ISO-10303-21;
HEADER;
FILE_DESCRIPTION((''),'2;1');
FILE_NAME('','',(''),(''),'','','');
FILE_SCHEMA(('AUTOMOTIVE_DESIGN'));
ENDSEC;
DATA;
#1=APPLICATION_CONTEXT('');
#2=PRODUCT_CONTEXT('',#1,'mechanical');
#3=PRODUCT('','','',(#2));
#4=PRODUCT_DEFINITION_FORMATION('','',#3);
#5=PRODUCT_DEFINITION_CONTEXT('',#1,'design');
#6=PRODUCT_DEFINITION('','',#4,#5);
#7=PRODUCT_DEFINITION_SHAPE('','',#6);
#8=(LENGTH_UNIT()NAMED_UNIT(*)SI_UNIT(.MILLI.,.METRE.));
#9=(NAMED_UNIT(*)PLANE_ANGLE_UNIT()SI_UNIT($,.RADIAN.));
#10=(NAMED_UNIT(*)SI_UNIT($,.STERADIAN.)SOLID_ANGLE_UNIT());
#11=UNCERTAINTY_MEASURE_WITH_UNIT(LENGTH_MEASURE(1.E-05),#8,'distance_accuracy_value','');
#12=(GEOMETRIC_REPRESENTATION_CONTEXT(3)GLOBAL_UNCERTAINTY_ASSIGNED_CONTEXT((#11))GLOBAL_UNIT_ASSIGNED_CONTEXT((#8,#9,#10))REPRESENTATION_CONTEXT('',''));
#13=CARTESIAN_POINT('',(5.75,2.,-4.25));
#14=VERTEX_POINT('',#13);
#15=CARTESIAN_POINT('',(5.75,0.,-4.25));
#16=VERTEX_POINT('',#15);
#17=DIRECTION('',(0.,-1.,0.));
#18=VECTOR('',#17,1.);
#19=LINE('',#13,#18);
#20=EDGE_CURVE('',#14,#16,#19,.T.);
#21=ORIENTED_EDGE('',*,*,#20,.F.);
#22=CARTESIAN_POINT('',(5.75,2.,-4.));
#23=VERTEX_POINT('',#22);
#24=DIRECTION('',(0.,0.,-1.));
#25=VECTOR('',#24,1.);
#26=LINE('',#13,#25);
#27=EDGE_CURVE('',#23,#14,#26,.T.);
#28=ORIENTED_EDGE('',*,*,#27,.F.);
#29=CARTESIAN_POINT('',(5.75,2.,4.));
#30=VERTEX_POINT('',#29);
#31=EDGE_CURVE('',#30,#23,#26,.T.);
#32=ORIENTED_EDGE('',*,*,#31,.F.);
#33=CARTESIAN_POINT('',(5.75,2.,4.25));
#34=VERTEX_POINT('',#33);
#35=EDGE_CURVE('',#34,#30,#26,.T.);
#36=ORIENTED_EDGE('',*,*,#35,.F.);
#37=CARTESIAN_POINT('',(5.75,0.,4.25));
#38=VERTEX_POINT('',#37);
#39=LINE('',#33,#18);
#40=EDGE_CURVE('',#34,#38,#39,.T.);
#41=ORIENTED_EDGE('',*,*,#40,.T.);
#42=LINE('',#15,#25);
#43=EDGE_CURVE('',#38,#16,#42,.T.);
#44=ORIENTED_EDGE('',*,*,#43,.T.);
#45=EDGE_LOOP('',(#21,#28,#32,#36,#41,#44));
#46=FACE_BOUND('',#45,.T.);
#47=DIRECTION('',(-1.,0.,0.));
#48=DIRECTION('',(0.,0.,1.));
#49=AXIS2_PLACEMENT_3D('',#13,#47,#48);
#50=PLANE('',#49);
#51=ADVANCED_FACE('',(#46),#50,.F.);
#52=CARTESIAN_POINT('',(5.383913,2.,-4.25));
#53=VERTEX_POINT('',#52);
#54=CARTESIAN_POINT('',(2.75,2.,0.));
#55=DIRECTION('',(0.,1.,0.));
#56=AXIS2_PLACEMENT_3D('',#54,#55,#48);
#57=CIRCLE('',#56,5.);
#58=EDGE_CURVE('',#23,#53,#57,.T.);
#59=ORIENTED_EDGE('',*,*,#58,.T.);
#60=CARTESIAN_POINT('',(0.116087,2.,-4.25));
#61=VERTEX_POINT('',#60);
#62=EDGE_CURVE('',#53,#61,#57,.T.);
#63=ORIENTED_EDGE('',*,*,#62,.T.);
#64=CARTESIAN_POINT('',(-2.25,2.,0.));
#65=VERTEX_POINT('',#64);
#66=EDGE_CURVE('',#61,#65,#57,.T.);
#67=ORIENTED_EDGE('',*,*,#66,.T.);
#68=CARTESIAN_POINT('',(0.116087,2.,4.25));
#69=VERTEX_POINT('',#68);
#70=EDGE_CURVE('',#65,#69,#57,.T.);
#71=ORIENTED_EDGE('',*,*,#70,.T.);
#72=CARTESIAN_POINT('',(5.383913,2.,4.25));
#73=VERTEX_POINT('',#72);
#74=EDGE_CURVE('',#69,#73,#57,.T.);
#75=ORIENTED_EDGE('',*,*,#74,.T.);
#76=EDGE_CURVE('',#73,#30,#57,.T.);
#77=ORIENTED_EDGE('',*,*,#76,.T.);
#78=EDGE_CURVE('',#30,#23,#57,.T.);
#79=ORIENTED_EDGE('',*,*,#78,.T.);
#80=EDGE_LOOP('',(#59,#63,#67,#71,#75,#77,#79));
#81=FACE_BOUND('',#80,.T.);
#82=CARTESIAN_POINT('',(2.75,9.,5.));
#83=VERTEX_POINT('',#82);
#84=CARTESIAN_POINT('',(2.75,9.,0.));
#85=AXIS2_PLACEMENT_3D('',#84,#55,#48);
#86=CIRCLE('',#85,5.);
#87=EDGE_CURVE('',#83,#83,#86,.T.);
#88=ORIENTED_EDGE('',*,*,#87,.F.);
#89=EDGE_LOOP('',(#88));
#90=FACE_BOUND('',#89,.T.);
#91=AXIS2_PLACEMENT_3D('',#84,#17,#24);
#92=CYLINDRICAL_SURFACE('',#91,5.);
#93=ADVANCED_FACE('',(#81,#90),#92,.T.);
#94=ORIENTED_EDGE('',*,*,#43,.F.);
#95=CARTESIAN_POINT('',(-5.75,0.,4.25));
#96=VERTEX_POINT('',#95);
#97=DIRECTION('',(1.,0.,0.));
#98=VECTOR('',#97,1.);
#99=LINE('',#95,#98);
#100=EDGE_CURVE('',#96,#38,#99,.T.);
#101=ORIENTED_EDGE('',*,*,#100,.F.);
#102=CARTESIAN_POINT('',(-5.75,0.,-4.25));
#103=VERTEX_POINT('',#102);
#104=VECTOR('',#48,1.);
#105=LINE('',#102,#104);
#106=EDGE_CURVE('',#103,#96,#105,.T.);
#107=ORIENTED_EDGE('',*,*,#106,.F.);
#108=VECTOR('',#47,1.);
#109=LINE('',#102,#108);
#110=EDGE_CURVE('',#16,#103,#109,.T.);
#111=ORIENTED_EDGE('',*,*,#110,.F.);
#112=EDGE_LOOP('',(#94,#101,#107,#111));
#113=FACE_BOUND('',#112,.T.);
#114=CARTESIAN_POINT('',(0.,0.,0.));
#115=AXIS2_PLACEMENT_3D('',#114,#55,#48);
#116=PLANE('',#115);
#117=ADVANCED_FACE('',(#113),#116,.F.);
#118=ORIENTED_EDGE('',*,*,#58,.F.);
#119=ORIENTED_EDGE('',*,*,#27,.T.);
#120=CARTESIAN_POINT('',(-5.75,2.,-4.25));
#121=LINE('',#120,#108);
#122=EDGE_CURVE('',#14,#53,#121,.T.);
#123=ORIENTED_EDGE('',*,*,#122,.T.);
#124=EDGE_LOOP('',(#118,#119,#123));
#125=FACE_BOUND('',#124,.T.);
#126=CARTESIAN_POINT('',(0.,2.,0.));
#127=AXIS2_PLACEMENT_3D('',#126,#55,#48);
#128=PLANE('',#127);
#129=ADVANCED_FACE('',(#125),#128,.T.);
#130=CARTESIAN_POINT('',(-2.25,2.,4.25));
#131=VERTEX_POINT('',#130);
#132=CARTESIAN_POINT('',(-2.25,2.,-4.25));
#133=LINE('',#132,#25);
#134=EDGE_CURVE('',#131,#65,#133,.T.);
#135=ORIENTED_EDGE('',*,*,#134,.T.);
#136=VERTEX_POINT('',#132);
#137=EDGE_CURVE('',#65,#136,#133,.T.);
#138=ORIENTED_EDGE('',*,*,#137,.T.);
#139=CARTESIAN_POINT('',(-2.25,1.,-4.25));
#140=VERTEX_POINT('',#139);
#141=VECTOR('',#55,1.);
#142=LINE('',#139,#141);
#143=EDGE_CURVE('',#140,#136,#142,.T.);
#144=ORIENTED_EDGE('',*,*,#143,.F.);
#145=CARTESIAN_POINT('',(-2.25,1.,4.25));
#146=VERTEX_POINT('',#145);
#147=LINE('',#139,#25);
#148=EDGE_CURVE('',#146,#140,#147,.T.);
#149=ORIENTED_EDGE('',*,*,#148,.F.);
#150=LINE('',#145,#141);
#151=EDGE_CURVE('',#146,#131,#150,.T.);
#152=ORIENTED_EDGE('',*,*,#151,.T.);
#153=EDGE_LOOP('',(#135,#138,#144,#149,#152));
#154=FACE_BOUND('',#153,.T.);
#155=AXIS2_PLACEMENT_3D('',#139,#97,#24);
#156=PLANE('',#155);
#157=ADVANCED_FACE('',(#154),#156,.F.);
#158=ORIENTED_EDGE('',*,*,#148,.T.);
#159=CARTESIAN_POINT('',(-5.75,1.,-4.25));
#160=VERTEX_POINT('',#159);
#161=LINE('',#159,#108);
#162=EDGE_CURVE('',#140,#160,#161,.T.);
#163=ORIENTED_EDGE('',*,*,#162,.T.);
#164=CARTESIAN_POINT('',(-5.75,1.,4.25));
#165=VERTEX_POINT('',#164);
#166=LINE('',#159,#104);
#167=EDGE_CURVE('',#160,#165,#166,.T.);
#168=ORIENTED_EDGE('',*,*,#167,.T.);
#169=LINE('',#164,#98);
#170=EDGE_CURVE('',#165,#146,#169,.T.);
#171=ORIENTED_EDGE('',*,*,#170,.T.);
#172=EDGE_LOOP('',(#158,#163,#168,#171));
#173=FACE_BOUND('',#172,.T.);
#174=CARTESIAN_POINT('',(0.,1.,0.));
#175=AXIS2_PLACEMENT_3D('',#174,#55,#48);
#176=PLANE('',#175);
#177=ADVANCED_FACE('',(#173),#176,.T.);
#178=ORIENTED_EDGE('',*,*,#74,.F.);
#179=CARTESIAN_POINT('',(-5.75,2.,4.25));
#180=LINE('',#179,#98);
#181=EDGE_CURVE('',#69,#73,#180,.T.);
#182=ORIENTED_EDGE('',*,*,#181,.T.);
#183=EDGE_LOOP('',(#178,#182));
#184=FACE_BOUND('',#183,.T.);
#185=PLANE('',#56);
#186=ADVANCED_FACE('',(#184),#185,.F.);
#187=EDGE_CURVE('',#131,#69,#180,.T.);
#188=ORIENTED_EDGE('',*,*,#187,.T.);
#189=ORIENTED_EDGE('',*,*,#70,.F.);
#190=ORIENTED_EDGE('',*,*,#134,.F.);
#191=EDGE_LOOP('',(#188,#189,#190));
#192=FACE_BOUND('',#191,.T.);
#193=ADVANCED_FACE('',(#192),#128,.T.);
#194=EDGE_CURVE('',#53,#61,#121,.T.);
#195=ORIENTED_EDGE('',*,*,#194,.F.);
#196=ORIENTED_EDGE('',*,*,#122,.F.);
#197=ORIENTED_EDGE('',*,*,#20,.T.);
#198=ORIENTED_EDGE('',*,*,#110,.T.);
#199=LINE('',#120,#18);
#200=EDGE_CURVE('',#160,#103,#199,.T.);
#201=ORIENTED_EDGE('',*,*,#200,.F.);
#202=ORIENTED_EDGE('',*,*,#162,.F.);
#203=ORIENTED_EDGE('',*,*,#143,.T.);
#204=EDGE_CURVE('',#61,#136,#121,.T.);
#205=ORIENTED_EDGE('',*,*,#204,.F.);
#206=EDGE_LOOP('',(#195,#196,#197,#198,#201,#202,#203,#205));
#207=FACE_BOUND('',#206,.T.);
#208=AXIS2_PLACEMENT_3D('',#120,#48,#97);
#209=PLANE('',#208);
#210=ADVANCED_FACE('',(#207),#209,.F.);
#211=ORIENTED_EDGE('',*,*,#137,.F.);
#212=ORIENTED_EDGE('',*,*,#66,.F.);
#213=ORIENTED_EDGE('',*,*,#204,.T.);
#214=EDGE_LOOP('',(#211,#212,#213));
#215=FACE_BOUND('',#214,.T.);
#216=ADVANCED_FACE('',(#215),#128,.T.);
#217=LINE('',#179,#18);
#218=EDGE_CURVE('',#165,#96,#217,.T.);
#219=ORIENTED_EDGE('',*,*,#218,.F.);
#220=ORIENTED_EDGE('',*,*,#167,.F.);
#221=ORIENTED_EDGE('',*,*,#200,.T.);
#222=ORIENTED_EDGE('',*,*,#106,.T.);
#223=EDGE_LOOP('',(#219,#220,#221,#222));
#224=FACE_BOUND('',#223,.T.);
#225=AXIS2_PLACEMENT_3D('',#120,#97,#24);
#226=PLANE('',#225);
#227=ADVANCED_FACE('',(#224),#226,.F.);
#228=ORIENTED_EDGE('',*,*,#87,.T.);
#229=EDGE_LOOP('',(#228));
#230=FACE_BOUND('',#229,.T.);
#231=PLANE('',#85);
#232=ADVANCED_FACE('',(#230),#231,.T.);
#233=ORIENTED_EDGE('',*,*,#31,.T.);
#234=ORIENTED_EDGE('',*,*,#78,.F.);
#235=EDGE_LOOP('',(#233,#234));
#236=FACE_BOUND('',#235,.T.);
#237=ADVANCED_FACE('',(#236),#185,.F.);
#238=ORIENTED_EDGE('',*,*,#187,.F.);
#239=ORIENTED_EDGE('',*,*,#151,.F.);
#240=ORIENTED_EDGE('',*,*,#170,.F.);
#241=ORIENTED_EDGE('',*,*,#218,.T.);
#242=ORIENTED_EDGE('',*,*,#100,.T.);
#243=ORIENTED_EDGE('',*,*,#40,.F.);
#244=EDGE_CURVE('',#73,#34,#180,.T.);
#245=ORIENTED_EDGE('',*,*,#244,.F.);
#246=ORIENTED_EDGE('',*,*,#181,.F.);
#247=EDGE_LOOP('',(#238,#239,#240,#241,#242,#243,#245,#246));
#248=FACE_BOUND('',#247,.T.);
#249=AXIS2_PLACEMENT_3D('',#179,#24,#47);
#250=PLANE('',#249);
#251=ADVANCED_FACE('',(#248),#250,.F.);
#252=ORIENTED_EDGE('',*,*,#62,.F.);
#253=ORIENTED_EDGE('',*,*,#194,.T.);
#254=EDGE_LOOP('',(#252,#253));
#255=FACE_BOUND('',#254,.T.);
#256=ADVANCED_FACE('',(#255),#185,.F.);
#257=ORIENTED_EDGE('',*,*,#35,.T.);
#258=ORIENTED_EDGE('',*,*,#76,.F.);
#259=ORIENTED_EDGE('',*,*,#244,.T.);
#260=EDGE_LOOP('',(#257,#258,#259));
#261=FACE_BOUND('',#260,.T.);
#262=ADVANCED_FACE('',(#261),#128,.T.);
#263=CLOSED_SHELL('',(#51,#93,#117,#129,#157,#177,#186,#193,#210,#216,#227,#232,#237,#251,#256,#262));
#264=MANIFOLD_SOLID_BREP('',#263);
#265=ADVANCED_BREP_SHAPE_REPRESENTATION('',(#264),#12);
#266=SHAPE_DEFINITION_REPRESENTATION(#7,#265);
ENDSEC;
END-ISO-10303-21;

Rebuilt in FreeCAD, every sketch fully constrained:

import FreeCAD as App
import Part
import Sketcher
from FreeCAD import Vector
Q = App.Units.Quantity

doc = App.newDocument("Part")
body = doc.addObject("PartDesign::Body", "Body")

sketch1 = doc.addObject("Sketcher::SketchObject", "Sketch")
body.addObject(sketch1)
sketch1.AttachmentSupport = (doc.XZ_Plane, [""])
sketch1.MapMode = "FlatFace"
sketch1.addGeometry(Part.LineSegment(Vector(-5.75, -4.25, 0), Vector(-5.75, 4.25, 0)), False)
sketch1.addGeometry(Part.LineSegment(Vector(-5.75, 4.25, 0), Vector(5.75, 4.25, 0)), False)
sketch1.addGeometry(Part.LineSegment(Vector(5.75, 4.25, 0), Vector(5.75, -4.25, 0)), False)
sketch1.addGeometry(Part.LineSegment(Vector(5.75, -4.25, 0), Vector(-5.75, -4.25, 0)), False)
sketch1.addConstraint(Sketcher.Constraint("Coincident", 0, 2, 1, 1))
sketch1.addConstraint(Sketcher.Constraint("Coincident", 1, 2, 2, 1))
sketch1.addConstraint(Sketcher.Constraint("Coincident", 2, 2, 3, 1))
sketch1.addConstraint(Sketcher.Constraint("Coincident", 3, 2, 0, 1))
sketch1.addConstraint(Sketcher.Constraint("Vertical", 0))
sketch1.addConstraint(Sketcher.Constraint("Horizontal", 1))
sketch1.addConstraint(Sketcher.Constraint("Vertical", 2))
sketch1.addConstraint(Sketcher.Constraint("Horizontal", 3))
sketch1.addConstraint(Sketcher.Constraint("Symmetric", 0, 2, 2, 2, -1, 1))
sketch1.addConstraint(Sketcher.Constraint("DistanceX", 1, 1, 1, 2, Q("11.5 mm")))
sketch1.addConstraint(Sketcher.Constraint("DistanceY", 0, 1, 0, 2, Q("8.5 mm")))
pad1 = doc.addObject("PartDesign::Pad", "Pad")
body.addObject(pad1)
pad1.Profile = sketch1
pad1.Length = 2
pad1.Reversed = True

sketch2 = doc.addObject("Sketcher::SketchObject", "Sketch001")
body.addObject(sketch2)
sketch2.AttachmentSupport = (doc.XZ_Plane, [""])
sketch2.MapMode = "FlatFace"
sketch2.AttachmentOffset = App.Placement(Vector(0, 0, -2), App.Rotation())
sketch2.addGeometry(Part.Circle(Vector(2.75, 0, 0), Vector(0, 0, 1), 5), False)
sketch2.addConstraint(Sketcher.Constraint("PointOnObject", 0, 3, -1))
sketch2.addConstraint(Sketcher.Constraint("Diameter", 0, Q("10 mm")))
sketch2.addConstraint(Sketcher.Constraint("DistanceX", -1, 1, 0, 3, Q("2.75 mm")))
pad2 = doc.addObject("PartDesign::Pad", "Pad001")
body.addObject(pad2)
pad2.Profile = sketch2
pad2.Length = 7
pad2.Reversed = True

sketch3 = doc.addObject("Sketcher::SketchObject", "Sketch002")
body.addObject(sketch3)
sketch3.AttachmentSupport = (doc.XZ_Plane, [""])
sketch3.MapMode = "FlatFace"
sketch3.AttachmentOffset = App.Placement(Vector(0, 0, -2), App.Rotation())
sketch3.addGeometry(Part.LineSegment(Vector(-5.75, -4.25, 0), Vector(-5.75, 4.25, 0)), False)
sketch3.addGeometry(Part.LineSegment(Vector(-5.75, 4.25, 0), Vector(-2.25, 4.25, 0)), False)
sketch3.addGeometry(Part.LineSegment(Vector(-2.25, 4.25, 0), Vector(-2.25, -4.25, 0)), False)
sketch3.addGeometry(Part.LineSegment(Vector(-2.25, -4.25, 0), Vector(-5.75, -4.25, 0)), False)
sketch3.addConstraint(Sketcher.Constraint("Coincident", 0, 2, 1, 1))
sketch3.addConstraint(Sketcher.Constraint("Coincident", 1, 2, 2, 1))
sketch3.addConstraint(Sketcher.Constraint("Coincident", 2, 2, 3, 1))
sketch3.addConstraint(Sketcher.Constraint("Coincident", 3, 2, 0, 1))
sketch3.addConstraint(Sketcher.Constraint("Vertical", 0))
sketch3.addConstraint(Sketcher.Constraint("Horizontal", 1))
sketch3.addConstraint(Sketcher.Constraint("Vertical", 2))
sketch3.addConstraint(Sketcher.Constraint("Horizontal", 3))
sketch3.addConstraint(Sketcher.Constraint("DistanceX", 1, 1, 1, 2, Q("3.5 mm")))
sketch3.addConstraint(Sketcher.Constraint("DistanceY", 0, 1, 0, 2, Q("8.5 mm")))
sketch3.addConstraint(Sketcher.Constraint("DistanceX", 0, 2, -1, 1, Q("5.75 mm")))
sketch3.addConstraint(Sketcher.Constraint("DistanceY", -1, 1, 0, 2, Q("4.25 mm")))
pocket1 = doc.addObject("PartDesign::Pocket", "Pocket")
body.addObject(pocket1)
pocket1.Profile = sketch3
pocket1.Length = 1
pocket1.Reversed = True

doc.recompute()
